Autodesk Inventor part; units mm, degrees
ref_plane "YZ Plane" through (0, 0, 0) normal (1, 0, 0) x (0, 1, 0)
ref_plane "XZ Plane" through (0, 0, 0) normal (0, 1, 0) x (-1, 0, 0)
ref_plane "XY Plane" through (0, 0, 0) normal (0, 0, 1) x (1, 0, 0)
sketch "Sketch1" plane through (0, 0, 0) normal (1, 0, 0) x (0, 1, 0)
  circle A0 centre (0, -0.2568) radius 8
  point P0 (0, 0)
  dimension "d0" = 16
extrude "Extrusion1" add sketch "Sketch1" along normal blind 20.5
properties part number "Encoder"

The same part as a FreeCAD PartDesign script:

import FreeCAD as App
import Part
import Sketcher
Q = App.Units.Quantity

doc = App.newDocument("Part")
body = doc.addObject("PartDesign::Body", "Body")

sketch1 = doc.addObject("Sketcher::SketchObject", "Sketch")
body.addObject(sketch1)
sketch1.AttachmentSupport = (doc.YZ_Plane, [""])
sketch1.MapMode = "FlatFace"
sketch1.addGeometry(Part.Circle(App.Vector(0, 0, 0), App.Vector(0, 0, 1), 8), False)
sketch1.addConstraint(Sketcher.Constraint("PointOnObject", 0, 3, -2))
sketch1.addConstraint(Sketcher.Constraint("Diameter", 0, Q("16 mm")))
sketch1.addConstraint(Sketcher.Constraint("DistanceY", 0, 3, -1, 1, Q("0.2568 mm")))
pad1 = doc.addObject("PartDesign::Pad", "Pad")
body.addObject(pad1)
pad1.Profile = sketch1
pad1.Length = 20.5

doc.recompute()
